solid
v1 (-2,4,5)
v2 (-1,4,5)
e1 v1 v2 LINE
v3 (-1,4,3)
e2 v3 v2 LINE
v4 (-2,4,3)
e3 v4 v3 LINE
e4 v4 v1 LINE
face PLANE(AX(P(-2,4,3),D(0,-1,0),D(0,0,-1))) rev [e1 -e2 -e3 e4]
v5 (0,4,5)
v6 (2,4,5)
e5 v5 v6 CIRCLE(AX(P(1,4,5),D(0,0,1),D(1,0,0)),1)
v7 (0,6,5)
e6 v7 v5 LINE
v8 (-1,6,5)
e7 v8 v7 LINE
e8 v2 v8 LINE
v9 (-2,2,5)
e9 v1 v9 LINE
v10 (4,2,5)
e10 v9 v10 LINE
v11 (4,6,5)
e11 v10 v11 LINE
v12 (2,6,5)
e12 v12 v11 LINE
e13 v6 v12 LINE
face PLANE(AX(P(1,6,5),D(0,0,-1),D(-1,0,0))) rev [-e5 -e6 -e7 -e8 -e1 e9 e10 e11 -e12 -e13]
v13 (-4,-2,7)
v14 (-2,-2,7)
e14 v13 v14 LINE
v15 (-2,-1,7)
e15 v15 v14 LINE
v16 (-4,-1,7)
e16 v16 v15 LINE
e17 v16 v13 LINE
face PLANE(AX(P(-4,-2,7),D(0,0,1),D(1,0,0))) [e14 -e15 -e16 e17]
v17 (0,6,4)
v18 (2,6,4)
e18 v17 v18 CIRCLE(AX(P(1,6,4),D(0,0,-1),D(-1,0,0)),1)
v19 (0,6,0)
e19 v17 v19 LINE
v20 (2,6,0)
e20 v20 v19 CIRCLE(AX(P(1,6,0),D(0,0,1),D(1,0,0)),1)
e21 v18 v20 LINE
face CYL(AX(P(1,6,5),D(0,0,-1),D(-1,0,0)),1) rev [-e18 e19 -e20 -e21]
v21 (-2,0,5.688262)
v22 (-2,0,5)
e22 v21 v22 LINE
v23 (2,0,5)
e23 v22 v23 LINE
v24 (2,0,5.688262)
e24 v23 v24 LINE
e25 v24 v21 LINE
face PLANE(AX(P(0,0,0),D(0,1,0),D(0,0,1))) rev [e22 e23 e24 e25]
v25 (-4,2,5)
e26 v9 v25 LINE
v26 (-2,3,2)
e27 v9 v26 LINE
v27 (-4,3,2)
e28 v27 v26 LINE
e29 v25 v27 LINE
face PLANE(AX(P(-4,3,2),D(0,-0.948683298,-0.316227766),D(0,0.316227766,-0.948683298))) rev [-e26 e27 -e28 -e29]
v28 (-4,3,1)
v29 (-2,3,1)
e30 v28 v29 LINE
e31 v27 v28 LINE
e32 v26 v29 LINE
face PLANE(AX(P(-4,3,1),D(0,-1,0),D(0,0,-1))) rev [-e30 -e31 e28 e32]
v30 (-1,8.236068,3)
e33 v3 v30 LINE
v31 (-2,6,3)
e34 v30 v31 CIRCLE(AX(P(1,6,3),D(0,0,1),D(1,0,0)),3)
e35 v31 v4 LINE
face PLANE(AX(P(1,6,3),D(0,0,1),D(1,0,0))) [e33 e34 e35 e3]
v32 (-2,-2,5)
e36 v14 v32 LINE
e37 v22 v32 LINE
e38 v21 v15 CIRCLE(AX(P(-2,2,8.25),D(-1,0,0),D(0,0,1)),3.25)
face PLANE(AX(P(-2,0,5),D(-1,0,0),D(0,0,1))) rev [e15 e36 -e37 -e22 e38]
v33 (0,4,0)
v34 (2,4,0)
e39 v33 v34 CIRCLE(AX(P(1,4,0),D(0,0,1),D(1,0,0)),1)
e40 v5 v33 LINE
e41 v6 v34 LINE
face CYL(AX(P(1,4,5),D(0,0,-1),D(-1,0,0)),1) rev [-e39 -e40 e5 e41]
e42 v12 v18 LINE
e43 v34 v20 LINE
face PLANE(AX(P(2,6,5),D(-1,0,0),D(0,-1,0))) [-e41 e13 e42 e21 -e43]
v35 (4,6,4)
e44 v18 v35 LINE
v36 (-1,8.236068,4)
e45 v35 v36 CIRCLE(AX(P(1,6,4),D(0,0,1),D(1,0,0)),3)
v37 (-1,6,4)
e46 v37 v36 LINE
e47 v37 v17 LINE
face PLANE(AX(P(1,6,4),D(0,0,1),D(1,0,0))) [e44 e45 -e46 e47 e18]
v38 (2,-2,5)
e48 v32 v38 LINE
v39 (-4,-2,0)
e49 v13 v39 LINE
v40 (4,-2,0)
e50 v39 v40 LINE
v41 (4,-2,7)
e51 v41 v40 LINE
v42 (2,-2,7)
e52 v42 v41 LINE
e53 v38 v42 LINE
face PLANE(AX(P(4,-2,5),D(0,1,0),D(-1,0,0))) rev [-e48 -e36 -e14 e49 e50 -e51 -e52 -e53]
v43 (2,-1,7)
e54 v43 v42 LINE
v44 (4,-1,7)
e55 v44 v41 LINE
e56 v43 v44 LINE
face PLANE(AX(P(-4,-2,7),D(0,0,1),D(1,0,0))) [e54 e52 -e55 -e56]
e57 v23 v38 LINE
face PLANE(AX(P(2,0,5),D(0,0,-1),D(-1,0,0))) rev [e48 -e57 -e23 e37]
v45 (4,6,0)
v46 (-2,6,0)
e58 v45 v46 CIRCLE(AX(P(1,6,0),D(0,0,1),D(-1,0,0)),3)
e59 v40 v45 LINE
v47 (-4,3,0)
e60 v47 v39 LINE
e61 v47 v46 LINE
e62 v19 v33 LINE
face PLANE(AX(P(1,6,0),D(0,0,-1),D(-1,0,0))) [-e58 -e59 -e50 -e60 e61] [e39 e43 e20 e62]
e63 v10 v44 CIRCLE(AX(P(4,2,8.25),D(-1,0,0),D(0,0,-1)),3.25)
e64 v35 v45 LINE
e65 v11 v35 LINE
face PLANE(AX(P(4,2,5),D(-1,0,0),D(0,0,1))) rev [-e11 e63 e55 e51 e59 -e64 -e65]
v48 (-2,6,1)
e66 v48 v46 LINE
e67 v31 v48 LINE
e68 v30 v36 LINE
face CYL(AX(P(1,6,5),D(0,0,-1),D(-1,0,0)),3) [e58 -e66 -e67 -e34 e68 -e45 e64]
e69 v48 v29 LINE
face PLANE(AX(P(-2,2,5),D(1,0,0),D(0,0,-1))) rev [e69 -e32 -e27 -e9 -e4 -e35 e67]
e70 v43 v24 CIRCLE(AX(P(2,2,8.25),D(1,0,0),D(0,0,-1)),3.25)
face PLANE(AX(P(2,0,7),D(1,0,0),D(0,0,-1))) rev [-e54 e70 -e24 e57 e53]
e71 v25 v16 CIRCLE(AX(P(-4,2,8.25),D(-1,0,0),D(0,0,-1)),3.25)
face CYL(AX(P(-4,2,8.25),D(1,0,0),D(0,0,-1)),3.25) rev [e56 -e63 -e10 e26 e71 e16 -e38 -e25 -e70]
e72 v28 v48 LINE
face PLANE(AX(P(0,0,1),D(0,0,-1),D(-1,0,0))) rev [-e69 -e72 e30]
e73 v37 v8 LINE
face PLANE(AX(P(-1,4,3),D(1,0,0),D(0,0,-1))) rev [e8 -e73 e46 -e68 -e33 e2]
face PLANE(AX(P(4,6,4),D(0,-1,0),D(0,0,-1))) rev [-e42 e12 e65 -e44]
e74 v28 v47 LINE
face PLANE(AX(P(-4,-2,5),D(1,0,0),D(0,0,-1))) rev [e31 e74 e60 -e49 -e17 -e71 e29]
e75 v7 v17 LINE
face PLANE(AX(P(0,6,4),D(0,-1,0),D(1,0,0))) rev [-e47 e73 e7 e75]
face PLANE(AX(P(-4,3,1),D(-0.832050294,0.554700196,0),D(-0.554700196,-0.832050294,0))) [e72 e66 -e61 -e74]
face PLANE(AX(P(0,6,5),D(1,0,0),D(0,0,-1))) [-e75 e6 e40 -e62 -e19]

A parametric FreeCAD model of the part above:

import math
import FreeCAD as App
import Part
import Sketcher
from FreeCAD import Vector
Q = App.Units.Quantity


def add_polygon(sketch, points):
    """Adds a closed chain of lines whose ends are joined by coincident constraints."""
    first, n = sketch.GeometryCount, len(points)
    for a, b in zip(points, points[1:] + points[:1]):
        sketch.addGeometry(Part.LineSegment(App.Vector(*a, 0), App.Vector(*b, 0)), False)
    for i in range(n):
        sketch.addConstraint(Sketcher.Constraint("Coincident", first + i, 2, first + (i + 1) % n, 1))

doc = App.newDocument("Part")
body = doc.addObject("PartDesign::Body", "Body")

# Sketch on XY plane
sketch1 = doc.addObject("Sketcher::SketchObject", "Sketch")
body.addObject(sketch1)
sketch1.AttachmentSupport = (doc.XY_Plane, [""])
sketch1.MapMode = "FlatFace"
sketch1.addGeometry(Part.ArcOfCircle(Part.Circle(Vector(1, 6, 0), Vector(0, 0, 1), 3), math.radians(0), math.radians(180)), False)
sketch1.addGeometry(Part.LineSegment(Vector(-2, 6, 0), Vector(-2, 2, 0)), False)
sketch1.addGeometry(Part.LineSegment(Vector(-2, 2, 0), Vector(-4, 2, 0)), False)
sketch1.addGeometry(Part.LineSegment(Vector(-4, 2, 0), Vector(-4, -2, 0)), False)
sketch1.addGeometry(Part.LineSegment(Vector(-4, -2, 0), Vector(4, -2, 0)), False)
sketch1.addGeometry(Part.LineSegment(Vector(4, -2, 0), Vector(4, 6, 0)), False)
sketch1.addGeometry(Part.ArcOfCircle(Part.Circle(Vector(1, 6, 0), Vector(0, 0, 1), 1), math.radians(0), math.radians(180)), False)
sketch1.addGeometry(Part.LineSegment(Vector(2, 6, 0), Vector(2, 4, 0)), False)
sketch1.addGeometry(Part.ArcOfCircle(Part.Circle(Vector(1, 4, 0), Vector(0, 0, 1), 1), math.radians(180), math.radians(360)), False)
sketch1.addGeometry(Part.LineSegment(Vector(0, 4, 0), Vector(0, 6, 0)), False)
sketch1.addConstraint(Sketcher.Constraint("Tangent", 0, 2, 1, 1))
sketch1.addConstraint(Sketcher.Constraint("Coincident", 1, 2, 2, 1))
sketch1.addConstraint(Sketcher.Constraint("Coincident", 2, 2, 3, 1))
sketch1.addConstraint(Sketcher.Constraint("Coincident", 3, 2, 4, 1))
sketch1.addConstraint(Sketcher.Constraint("Coincident", 4, 2, 5, 1))
sketch1.addConstraint(Sketcher.Constraint("Tangent", 5, 2, 0, 1))
sketch1.addConstraint(Sketcher.Constraint("Tangent", 6, 1, 7, 1))
sketch1.addConstraint(Sketcher.Constraint("Tangent", 7, 2, 8, 2))
sketch1.addConstraint(Sketcher.Constraint("Tangent", 8, 1, 9, 1))
sketch1.addConstraint(Sketcher.Constraint("Tangent", 9, 2, 6, 2))
sketch1.addConstraint(Sketcher.Constraint("Vertical", 1))
sketch1.addConstraint(Sketcher.Constraint("Horizontal", 2))
sketch1.addConstraint(Sketcher.Constraint("Vertical", 3))
sketch1.addConstraint(Sketcher.Constraint("Horizontal", 4))
sketch1.addConstraint(Sketcher.Constraint("Vertical", 5))
sketch1.addConstraint(Sketcher.Constraint("Vertical", 7))
sketch1.addConstraint(Sketcher.Constraint("Vertical", 9))
sketch1.addConstraint(Sketcher.Constraint("Coincident", 6, 3, 0, 3))
sketch1.addConstraint(Sketcher.Constraint("Symmetric", 2, 2, 4, 2, -1, 1))
sketch1.addConstraint(Sketcher.Constraint("PointOnObject", 8, 1, -2))
sketch1.addConstraint(Sketcher.Constraint("Equal", 1, 3))
sketch1.addConstraint(Sketcher.Constraint("Equal", 4, 5))
sketch1.addConstraint(Sketcher.Constraint("Equal", 2, 7))
sketch1.addConstraint(Sketcher.Constraint("Radius", 0, Q("3 mm")))
sketch1.addConstraint(Sketcher.Constraint("Radius", 6, Q("1 mm")))
pad1 = doc.addObject("PartDesign::Pad", "Pad")
body.addObject(pad1)
pad1.Profile = sketch1
pad1.Length = 5

# Sketch on YZ plane
sketch2 = doc.addObject("Sketcher::SketchObject", "Sketch001")
body.addObject(sketch2)
sketch2.AttachmentSupport = (doc.YZ_Plane, [""])
sketch2.MapMode = "FlatFace"
sketch2.AttachmentOffset = App.Placement(Vector(0, 0, 4), App.Rotation())
sketch2.addGeometry(Part.LineSegment(Vector(-2, 7, 0), Vector(-2, 5, 0)), False)
sketch2.addGeometry(Part.LineSegment(Vector(-2, 5, 0), Vector(2, 5, 0)), False)
sketch2.addGeometry(Part.ArcOfCircle(Part.Circle(Vector(2, 8.25, 0), Vector(0, 0, 1), 3.25), math.radians(-157.380135), math.radians(-90)), False)
sketch2.addGeometry(Part.LineSegment(Vector(-1, 7, 0), Vector(-2, 7, 0)), False)
sketch2.addConstraint(Sketcher.Constraint("Coincident", 0, 2, 1, 1))
sketch2.addConstraint(Sketcher.Constraint("Tangent", 1, 2, 2, 2))
sketch2.addConstraint(Sketcher.Constraint("Coincident", 2, 1, 3, 1))
sketch2.addConstraint(Sketcher.Constraint("Coincident", 3, 2, 0, 1))
sketch2.addConstraint(Sketcher.Constraint("Vertical", 0))
sketch2.addConstraint(Sketcher.Constraint("Horizontal", 1))
sketch2.addConstraint(Sketcher.Constraint("Horizontal", 3))
sketch2.addConstraint(Sketcher.Constraint("DistanceX", 1, 1, 1, 2, Q("4 mm")))
sketch2.addConstraint(Sketcher.Constraint("DistanceX", 3, 2, 3, 1, Q("1 mm")))
sketch2.addConstraint(Sketcher.Constraint("DistanceY", 0, 2, 0, 1, Q("2 mm")))
sketch2.addConstraint(Sketcher.Constraint("DistanceX", -1, 1, 2, 3, Q("2 mm")))
sketch2.addConstraint(Sketcher.Constraint("DistanceY", -1, 1, 0, 2, Q("5 mm")))
pad2 = doc.addObject("PartDesign::Pad", "Pad001")
body.addObject(pad2)
pad2.Profile = sketch2
pad2.Length = 8
pad2.Reversed = True

# Sketch on XZ plane
sketch3 = doc.addObject("Sketcher::SketchObject", "Sketch002")
body.addObject(sketch3)
sketch3.AttachmentSupport = (doc.XZ_Plane, [""])
sketch3.MapMode = "FlatFace"
sketch3.AttachmentOffset = App.Placement(Vector(0, 0, 2), App.Rotation())
add_polygon(sketch3, [(-2, 7), (-2, 5), (2, 5), (2, 7)])  # lines 0-3
sketch3.addConstraint(Sketcher.Constraint("Vertical", 0))
sketch3.addConstraint(Sketcher.Constraint("Horizontal", 1))
sketch3.addConstraint(Sketcher.Constraint("Vertical", 2))
sketch3.addConstraint(Sketcher.Constraint("Horizontal", 3))
sketch3.addConstraint(Sketcher.Constraint("DistanceX", 1, 1, 1, 2, Q("4 mm")))
sketch3.addConstraint(Sketcher.Constraint("DistanceY", 0, 2, 0, 1, Q("2 mm")))
sketch3.addConstraint(Sketcher.Constraint("DistanceX", 0, 2, -1, 1, Q("2 mm")))
sketch3.addConstraint(Sketcher.Constraint("DistanceY", -1, 1, 0, 2, Q("5 mm")))
pocket1 = doc.addObject("PartDesign::Pocket", "Pocket")
body.addObject(pocket1)
pocket1.Profile = sketch3
pocket1.Length = 2

# Sketch on XY plane
sketch4 = doc.addObject("Sketcher::SketchObject", "Sketch003")
body.addObject(sketch4)
sketch4.AttachmentSupport = (doc.XY_Plane, [""])
sketch4.MapMode = "FlatFace"
sketch4.AttachmentOffset = App.Placement(Vector(0, 0, 5), App.Rotation())
sketch4.addGeometry(Part.LineSegment(Vector(2, 6, 0), Vector(4, 6, 0)), False)
sketch4.addGeometry(Part.ArcOfCircle(Part.Circle(Vector(1, 6, 0), Vector(0, 0, 1), 3), math.radians(0), math.radians(180)), False)
sketch4.addGeometry(Part.LineSegment(Vector(-2, 6, 0), Vector(0, 6, 0)), False)
sketch4.addGeometry(Part.ArcOfCircle(Part.Circle(Vector(1, 6, 0), Vector(0, 0, 1), 1), math.radians(0), math.radians(180)), False)
sketch4.addConstraint(Sketcher.Constraint("Coincident", 0, 2, 1, 1))
sketch4.addConstraint(Sketcher.Constraint("Coincident", 1, 2, 2, 1))
sketch4.addConstraint(Sketcher.Constraint("Coincident", 2, 2, 3, 2))
sketch4.addConstraint(Sketcher.Constraint("Coincident", 3, 1, 0, 1))
sketch4.addConstraint(Sketcher.Constraint("Horizontal", 0))
sketch4.addConstraint(Sketcher.Constraint("Horizontal", 2))
sketch4.addConstraint(Sketcher.Constraint("Coincident", 3, 3, 1, 3))
sketch4.addConstraint(Sketcher.Constraint("Symmetric", 1, 2, 3, 1, -2))
sketch4.addConstraint(Sketcher.Constraint("PointOnObject", 2, 2, -2))
sketch4.addConstraint(Sketcher.Constraint("Horizontal", 3, 3, 0, 2))
sketch4.addConstraint(Sketcher.Constraint("Radius", 1, Q("3 mm")))
sketch4.addConstraint(Sketcher.Constraint("DistanceY", -1, 1, 1, 3, Q("6 mm")))
pocket2 = doc.addObject("PartDesign::Pocket", "Pocket001")
body.addObject(pocket2)
pocket2.Profile = sketch4
pocket2.Length = 1

# Sketch on XY plane
sketch5 = doc.addObject("Sketcher::SketchObject", "Sketch004")
body.addObject(sketch5)
sketch5.AttachmentSupport = (doc.XY_Plane, [""])
sketch5.MapMode = "FlatFace"
sketch5.AttachmentOffset = App.Placement(Vector(0, 0, 5), App.Rotation())
sketch5.addGeometry(Part.LineSegment(Vector(-2, 4, 0), Vector(-1, 4, 0)), False)
sketch5.addGeometry(Part.LineSegment(Vector(-1, 4, 0), Vector(-1, 8.236068, 0)), False)
sketch5.addGeometry(Part.ArcOfCircle(Part.Circle(Vector(1, 6, 0), Vector(0, 0, 1), 3), math.radians(131.810315), math.radians(180)), False)
sketch5.addGeometry(Part.LineSegment(Vector(-2, 6, 0), Vector(-2, 4, 0)), False)
sketch5.addConstraint(Sketcher.Constraint("Coincident", 0, 2, 1, 1))
sketch5.addConstraint(Sketcher.Constraint("Coincident", 1, 2, 2, 1))
sketch5.addConstraint(Sketcher.Constraint("Tangent", 2, 2, 3, 1))
sketch5.addConstraint(Sketcher.Constraint("Coincident", 3, 2, 0, 1))
sketch5.addConstraint(Sketcher.Constraint("Horizontal", 0))
sketch5.addConstraint(Sketcher.Constraint("Vertical", 1))
sketch5.addConstraint(Sketcher.Constraint("Vertical", 3))
sketch5.addConstraint(Sketcher.Constraint("Radius", 2, Q("3 mm")))
sketch5.addConstraint(Sketcher.Constraint("DistanceX", 0, 1, 0, 2, Q("1 mm")))
sketch5.addConstraint(Sketcher.Constraint("DistanceY", 3, 2, 3, 1, Q("2 mm")))
sketch5.addConstraint(Sketcher.Constraint("DistanceX", -1, 1, 2, 3, Q("1 mm")))
sketch5.addConstraint(Sketcher.Constraint("DistanceY", -1, 1, 2, 3, Q("6 mm")))
pocket3 = doc.addObject("PartDesign::Pocket", "Pocket002")
body.addObject(pocket3)
pocket3.Profile = sketch5
pocket3.Length = 2

# Sketch on XY plane
sketch6 = doc.addObject("Sketcher::SketchObject", "Sketch005")
body.addObject(sketch6)
sketch6.AttachmentSupport = (doc.XY_Plane, [""])
sketch6.MapMode = "FlatFace"
add_polygon(sketch6, [(-4, 2), (-4, 3), (-2, 6), (-2, 2)])  # lines 0-3
sketch6.addConstraint(Sketcher.Constraint("Vertical", 0))
sketch6.addConstraint(Sketcher.Constraint("Vertical", 2))
sketch6.addConstraint(Sketcher.Constraint("Horizontal", 3))
sketch6.addConstraint(Sketcher.Constraint("DistanceX", 3, 2, 3, 1, Q("2 mm")))
sketch6.addConstraint(Sketcher.Constraint("DistanceY", 0, 1, 0, 2, Q("1 mm")))
sketch6.addConstraint(Sketcher.Constraint("DistanceY", 2, 2, 2, 1, Q("4 mm")))
sketch6.addConstraint(Sketcher.Constraint("DistanceX", 0, 2, -1, 1, Q("4 mm")))
sketch6.addConstraint(Sketcher.Constraint("DistanceY", -1, 1, 0, 2, Q("3 mm")))
pad3 = doc.addObject("PartDesign::Pad", "Pad002")
body.addObject(pad3)
pad3.Profile = sketch6
pad3.Length = 1

# Sketch on YZ plane
sketch7 = doc.addObject("Sketcher::SketchObject", "Sketch006")
body.addObject(sketch7)
sketch7.AttachmentSupport = (doc.YZ_Plane, [""])
sketch7.MapMode = "FlatFace"
sketch7.AttachmentOffset = App.Placement(Vector(0, 0, -2), App.Rotation())
add_polygon(sketch7, [(3, 1), (2, 1), (2, 5), (3, 2)])  # lines 0-3
sketch7.addConstraint(Sketcher.Constraint("Horizontal", 0))
sketch7.addConstraint(Sketcher.Constraint("Vertical", 1))
sketch7.addConstraint(Sketcher.Constraint("Vertical", 3))
sketch7.addConstraint(Sketcher.Constraint("Equal", 0, 3))
sketch7.addConstraint(Sketcher.Constraint("DistanceX", 0, 2, 0, 1, Q("1 mm")))
sketch7.addConstraint(Sketcher.Constraint("DistanceY", 1, 1, 1, 2, Q("4 mm")))
sketch7.addConstraint(Sketcher.Constraint("DistanceX", -1, 1, 0, 2, Q("2 mm")))
sketch7.addConstraint(Sketcher.Constraint("DistanceY", -1, 1, 0, 2, Q("1 mm")))
pad4 = doc.addObject("PartDesign::Pad", "Pad003")
body.addObject(pad4)
pad4.Profile = sketch7
pad4.Length = 2
pad4.Reversed = True

doc.recompute()
